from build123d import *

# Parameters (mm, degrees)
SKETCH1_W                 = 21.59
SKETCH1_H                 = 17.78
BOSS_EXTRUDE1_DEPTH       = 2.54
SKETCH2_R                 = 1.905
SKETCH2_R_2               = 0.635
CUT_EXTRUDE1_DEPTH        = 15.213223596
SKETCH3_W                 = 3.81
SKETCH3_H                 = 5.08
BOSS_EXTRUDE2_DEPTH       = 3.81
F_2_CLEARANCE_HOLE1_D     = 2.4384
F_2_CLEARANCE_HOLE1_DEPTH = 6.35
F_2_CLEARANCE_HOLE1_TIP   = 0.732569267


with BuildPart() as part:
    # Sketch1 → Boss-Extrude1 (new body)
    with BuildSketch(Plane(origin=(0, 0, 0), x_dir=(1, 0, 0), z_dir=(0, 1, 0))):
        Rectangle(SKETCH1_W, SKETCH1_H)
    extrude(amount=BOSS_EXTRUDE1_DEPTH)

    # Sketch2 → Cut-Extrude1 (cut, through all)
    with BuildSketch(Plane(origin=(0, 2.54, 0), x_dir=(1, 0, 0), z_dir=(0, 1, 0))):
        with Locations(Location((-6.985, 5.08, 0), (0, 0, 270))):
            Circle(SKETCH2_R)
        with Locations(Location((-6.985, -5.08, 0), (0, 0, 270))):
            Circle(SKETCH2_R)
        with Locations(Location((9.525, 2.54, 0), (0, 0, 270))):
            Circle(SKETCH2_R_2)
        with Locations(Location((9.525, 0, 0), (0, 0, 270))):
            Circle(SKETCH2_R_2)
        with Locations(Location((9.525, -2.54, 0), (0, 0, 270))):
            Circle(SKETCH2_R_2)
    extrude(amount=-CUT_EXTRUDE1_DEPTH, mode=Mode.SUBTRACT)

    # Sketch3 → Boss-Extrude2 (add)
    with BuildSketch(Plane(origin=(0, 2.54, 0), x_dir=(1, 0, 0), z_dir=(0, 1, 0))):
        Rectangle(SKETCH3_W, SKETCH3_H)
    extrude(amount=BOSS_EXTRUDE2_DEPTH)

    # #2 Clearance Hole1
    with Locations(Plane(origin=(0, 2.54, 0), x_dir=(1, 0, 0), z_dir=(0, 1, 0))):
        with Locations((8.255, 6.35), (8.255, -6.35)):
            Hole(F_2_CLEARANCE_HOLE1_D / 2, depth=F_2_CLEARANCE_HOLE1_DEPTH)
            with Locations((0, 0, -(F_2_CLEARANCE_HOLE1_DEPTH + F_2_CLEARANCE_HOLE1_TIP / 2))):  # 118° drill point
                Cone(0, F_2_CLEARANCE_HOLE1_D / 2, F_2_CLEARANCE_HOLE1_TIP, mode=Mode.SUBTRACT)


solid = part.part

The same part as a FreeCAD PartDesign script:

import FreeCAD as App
import Part
import Sketcher
Q = App.Units.Quantity

doc = App.newDocument("Part")
body = doc.addObject("PartDesign::Body", "Body")

# Sketch on XZ plane
sketch1 = doc.addObject("Sketcher::SketchObject", "Sketch")
body.addObject(sketch1)
sketch1.AttachmentSupport = (doc.XZ_Plane, [""])
sketch1.MapMode = "FlatFace"
sketch1.addGeometry([
    Part.LineSegment(App.Vector(-10.795, -8.89, 0), App.Vector(-10.795, 8.89, 0)),
    Part.LineSegment(App.Vector(-10.795, 8.89, 0), App.Vector(10.795, 8.89, 0)),
    Part.LineSegment(App.Vector(10.795, 8.89, 0), App.Vector(10.795, -8.89, 0)),
    Part.LineSegment(App.Vector(10.795, -8.89, 0), App.Vector(-10.795, -8.89, 0)),
], False)
sketch1.addConstraint([
    Sketcher.Constraint("Coincident", 0, 2, 1, 1),
    Sketcher.Constraint("Coincident", 1, 2, 2, 1),
    Sketcher.Constraint("Coincident", 2, 2, 3, 1),
    Sketcher.Constraint("Coincident", 3, 2, 0, 1),
    Sketcher.Constraint("Vertical", 0),
    Sketcher.Constraint("Horizontal", 1),
    Sketcher.Constraint("Vertical", 2),
    Sketcher.Constraint("Horizontal", 3),
    Sketcher.Constraint("Symmetric", 0, 2, 2, 2, -1, 1),
    Sketcher.Constraint("DistanceY", 0, 1, 0, 2, Q("0.7 in")),
    Sketcher.Constraint("DistanceX", 1, 1, 1, 2, Q("0.85 in")),
])
pad1 = doc.addObject("PartDesign::Pad", "Pad")
body.addObject(pad1)
pad1.Profile = sketch1
pad1.Length = Q("0.1 in")
pad1.Reversed = True

# Sketch on XZ plane
sketch2 = doc.addObject("Sketcher::SketchObject", "Sketch001")
body.addObject(sketch2)
sketch2.AttachmentSupport = (doc.XZ_Plane, [""])
sketch2.MapMode = "FlatFace"
sketch2.AttachmentOffset = App.Placement(App.Vector(0, 0, -0.1 * 25.4), App.Rotation())
sketch2.addGeometry([
    Part.Circle(App.Vector(-6.985, -5.08, 0), App.Vector(0, 0, 1), 1.905),  # 0
    Part.Circle(App.Vector(-6.985, 5.08, 0), App.Vector(0, 0, 1), 1.905),  # 1
    Part.Circle(App.Vector(9.525, -2.54, 0), App.Vector(0, 0, 1), 0.635),  # 2
    Part.Circle(App.Vector(9.525, 0, 0), App.Vector(0, 0, 1), 0.635),  # 3
    Part.Circle(App.Vector(9.525, 2.54, 0), App.Vector(0, 0, 1), 0.635),  # 4
], False)
sketch2.addConstraint([
    Sketcher.Constraint("Equal", 0, 1),
    Sketcher.Constraint("Equal", 2, 3),
    Sketcher.Constraint("Equal", 3, 4),
    Sketcher.Constraint("Symmetric", 0, 3, 1, 3, -1),
    Sketcher.Constraint("Symmetric", 2, 3, 4, 3, -1),
    Sketcher.Constraint("PointOnObject", 3, 3, -1),
    Sketcher.Constraint("Vertical", 2, 3, 3, 3),
    Sketcher.Constraint("Diameter", 0, Q("0.15 in")),
    Sketcher.Constraint("Diameter", 2, Q("0.05 in")),
    Sketcher.Constraint("DistanceY", 0, 3, -1, 1, Q("0.2 in")),
    Sketcher.Constraint("DistanceY", 2, 3, -1, 1, Q("0.1 in")),
    Sketcher.Constraint("DistanceX", 0, 3, 2, 3, Q("0.65 in")),
    Sketcher.Constraint("DistanceX", 0, 3, -1, 1, Q("0.275 in")),
])
pocket1 = doc.addObject("PartDesign::Pocket", "Pocket")
body.addObject(pocket1)
pocket1.Profile = sketch2
pocket1.Type = "ThroughAll"
pocket1.Reversed = True

# Sketch on XZ plane
sketch3 = doc.addObject("Sketcher::SketchObject", "Sketch002")
body.addObject(sketch3)
sketch3.AttachmentSupport = (doc.XZ_Plane, [""])
sketch3.MapMode = "FlatFace"
sketch3.AttachmentOffset = App.Placement(App.Vector(0, 0, -0.1 * 25.4), App.Rotation())
sketch3.addGeometry([
    Part.LineSegment(App.Vector(-1.905, -2.54, 0), App.Vector(-1.905, 2.54, 0)),
    Part.LineSegment(App.Vector(-1.905, 2.54, 0), App.Vector(1.905, 2.54, 0)),
    Part.LineSegment(App.Vector(1.905, 2.54, 0), App.Vector(1.905, -2.54, 0)),
    Part.LineSegment(App.Vector(1.905, -2.54, 0), App.Vector(-1.905, -2.54, 0)),
], False)
sketch3.addConstraint([
    Sketcher.Constraint("Coincident", 0, 2, 1, 1),
    Sketcher.Constraint("Coincident", 1, 2, 2, 1),
    Sketcher.Constraint("Coincident", 2, 2, 3, 1),
    Sketcher.Constraint("Coincident", 3, 2, 0, 1),
    Sketcher.Constraint("Vertical", 0),
    Sketcher.Constraint("Horizontal", 1),
    Sketcher.Constraint("Vertical", 2),
    Sketcher.Constraint("Horizontal", 3),
    Sketcher.Constraint("Symmetric", 0, 2, 2, 2, -1, 1),
    Sketcher.Constraint("DistanceY", 0, 1, 0, 2, Q("0.2 in")),
    Sketcher.Constraint("DistanceX", 1, 1, 1, 2, Q("0.15 in")),
])
pad2 = doc.addObject("PartDesign::Pad", "Pad001")
body.addObject(pad2)
pad2.Profile = sketch3
pad2.Length = Q("0.15 in")
pad2.Reversed = True

# Sketch on XZ plane
sketch4 = doc.addObject("Sketcher::SketchObject", "Sketch003")
body.addObject(sketch4)
sketch4.AttachmentSupport = (doc.XZ_Plane, [""])
sketch4.MapMode = "FlatFace"
sketch4.AttachmentOffset = App.Placement(App.Vector(0, 0, -0.1 * 25.4), App.Rotation())
sketch4.addGeometry([
    Part.Circle(App.Vector(8.255, -6.35, 0), App.Vector(0, 0, 1), 1.2192),
    Part.Circle(App.Vector(8.255, 6.35, 0), App.Vector(0, 0, 1), 1.2192),
], False)
sketch4.addConstraint([
    Sketcher.Constraint("Equal", 0, 1),
    Sketcher.Constraint("Symmetric", 0, 3, 1, 3, -1),
    Sketcher.Constraint("Diameter", 0, Q("0.096 in")),
    Sketcher.Constraint("DistanceY", 0, 3, 1, 3, Q("0.5 in")),
    Sketcher.Constraint("DistanceX", -1, 1, 0, 3, Q("0.325 in")),
])
doc.recompute()
hole = doc.addObject("PartDesign::Hole", "Hole")
body.addObject(hole)
hole.Profile = sketch4
hole.ThreadType = "None"
hole.Diameter = Q("0.096 in")
hole.DepthType = "Dimension"
hole.Depth = Q("0.25 in")
hole.DrillPoint = "Angled"
hole.DrillPointAngle = 118
hole.Reversed = True

doc.recompute()
